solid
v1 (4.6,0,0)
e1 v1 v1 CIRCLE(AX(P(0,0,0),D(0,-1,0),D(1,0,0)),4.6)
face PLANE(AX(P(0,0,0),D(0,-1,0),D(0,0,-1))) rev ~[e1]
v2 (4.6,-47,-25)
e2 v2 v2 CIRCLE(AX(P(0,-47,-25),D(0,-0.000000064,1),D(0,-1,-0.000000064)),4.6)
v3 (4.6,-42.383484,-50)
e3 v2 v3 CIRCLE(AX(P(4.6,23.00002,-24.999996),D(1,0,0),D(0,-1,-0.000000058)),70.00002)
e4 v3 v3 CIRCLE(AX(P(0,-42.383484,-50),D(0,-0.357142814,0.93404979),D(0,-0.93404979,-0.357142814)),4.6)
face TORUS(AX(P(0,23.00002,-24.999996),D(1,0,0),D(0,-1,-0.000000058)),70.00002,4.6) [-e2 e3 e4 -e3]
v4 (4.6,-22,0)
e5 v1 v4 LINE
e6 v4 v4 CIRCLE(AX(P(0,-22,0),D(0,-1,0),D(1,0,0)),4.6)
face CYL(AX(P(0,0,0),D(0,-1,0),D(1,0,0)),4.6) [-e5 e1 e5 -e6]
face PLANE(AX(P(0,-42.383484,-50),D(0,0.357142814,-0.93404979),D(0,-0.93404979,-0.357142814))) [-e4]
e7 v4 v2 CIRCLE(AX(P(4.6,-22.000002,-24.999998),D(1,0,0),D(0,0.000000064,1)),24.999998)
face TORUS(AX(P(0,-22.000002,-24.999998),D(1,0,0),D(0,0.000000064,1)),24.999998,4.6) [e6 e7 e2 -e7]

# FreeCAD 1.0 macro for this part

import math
import FreeCAD as App
import Part
import Sketcher

V = App.Vector

doc = App.newDocument("Part")
body = doc.addObject("PartDesign::Body", "Body")

sketch1 = doc.addObject("Sketcher::SketchObject", "Sketch")
body.addObject(sketch1)
sketch1.AttachmentSupport = (doc.XZ_Plane, [""])
sketch1.MapMode = "FlatFace"
sketch1.addGeometry(Part.Circle(V(0, 0, 0), V(0, 0, 1), 4.6), False)
sketch1.addConstraint(Sketcher.Constraint("Coincident", 0, 3, -1, 1))
sketch1.addConstraint(Sketcher.Constraint("Diameter", 0, 9.2))

sketch2 = doc.addObject("Sketcher::SketchObject", "Sketch001")
body.addObject(sketch2)
sketch2.AttachmentSupport = (doc.YZ_Plane, [""])
sketch2.MapMode = "FlatFace"
sketch2.addGeometry(Part.LineSegment(V(0, 0, 0), V(-22, 0, 0)), False)
sketch2.addGeometry(Part.ArcOfCircle(Part.Circle(V(-22.000002, -24.999998, 0), V(0, 0, 1), 24.999998), math.radians(89.999996), math.radians(180.000004)), False)
sketch2.addGeometry(Part.ArcOfCircle(Part.Circle(V(23.00002, -24.999996, 0), V(0, 0, 1), 70.00002), math.radians(-179.999997), math.radians(-159.07517)), False)
sketch2.addConstraint(Sketcher.Constraint("Tangent", 0, 2, 1, 1))
sketch2.addConstraint(Sketcher.Constraint("Tangent", 1, 2, 2, 1))
sketch2.addConstraint(Sketcher.Constraint("Horizontal", 0))
sketch2.addConstraint(Sketcher.Constraint("Coincident", 0, 1, -1, 1))
sketch2.addConstraint(Sketcher.Constraint("Radius", 1, 24.999998))
sketch2.addConstraint(Sketcher.Constraint("DistanceX", 0, 2, 0, 1, 22.0))
sketch2.addConstraint(Sketcher.Constraint("DistanceY", 1, 2, -1, 1, 25.0))
sketch2.addConstraint(Sketcher.Constraint("DistanceY", 2, 2, -1, 1, 50.0))
sketch2.addConstraint(Sketcher.Constraint("Radius", 2, 70.00002))
doc.recompute()

additivepipe = doc.addObject("PartDesign::AdditivePipe", "AdditivePipe")
body.addObject(additivepipe)
additivepipe.Profile = sketch1
additivepipe.Spine = (sketch2, ["Edge1", "Edge2", "Edge3"])

doc.recompute()
